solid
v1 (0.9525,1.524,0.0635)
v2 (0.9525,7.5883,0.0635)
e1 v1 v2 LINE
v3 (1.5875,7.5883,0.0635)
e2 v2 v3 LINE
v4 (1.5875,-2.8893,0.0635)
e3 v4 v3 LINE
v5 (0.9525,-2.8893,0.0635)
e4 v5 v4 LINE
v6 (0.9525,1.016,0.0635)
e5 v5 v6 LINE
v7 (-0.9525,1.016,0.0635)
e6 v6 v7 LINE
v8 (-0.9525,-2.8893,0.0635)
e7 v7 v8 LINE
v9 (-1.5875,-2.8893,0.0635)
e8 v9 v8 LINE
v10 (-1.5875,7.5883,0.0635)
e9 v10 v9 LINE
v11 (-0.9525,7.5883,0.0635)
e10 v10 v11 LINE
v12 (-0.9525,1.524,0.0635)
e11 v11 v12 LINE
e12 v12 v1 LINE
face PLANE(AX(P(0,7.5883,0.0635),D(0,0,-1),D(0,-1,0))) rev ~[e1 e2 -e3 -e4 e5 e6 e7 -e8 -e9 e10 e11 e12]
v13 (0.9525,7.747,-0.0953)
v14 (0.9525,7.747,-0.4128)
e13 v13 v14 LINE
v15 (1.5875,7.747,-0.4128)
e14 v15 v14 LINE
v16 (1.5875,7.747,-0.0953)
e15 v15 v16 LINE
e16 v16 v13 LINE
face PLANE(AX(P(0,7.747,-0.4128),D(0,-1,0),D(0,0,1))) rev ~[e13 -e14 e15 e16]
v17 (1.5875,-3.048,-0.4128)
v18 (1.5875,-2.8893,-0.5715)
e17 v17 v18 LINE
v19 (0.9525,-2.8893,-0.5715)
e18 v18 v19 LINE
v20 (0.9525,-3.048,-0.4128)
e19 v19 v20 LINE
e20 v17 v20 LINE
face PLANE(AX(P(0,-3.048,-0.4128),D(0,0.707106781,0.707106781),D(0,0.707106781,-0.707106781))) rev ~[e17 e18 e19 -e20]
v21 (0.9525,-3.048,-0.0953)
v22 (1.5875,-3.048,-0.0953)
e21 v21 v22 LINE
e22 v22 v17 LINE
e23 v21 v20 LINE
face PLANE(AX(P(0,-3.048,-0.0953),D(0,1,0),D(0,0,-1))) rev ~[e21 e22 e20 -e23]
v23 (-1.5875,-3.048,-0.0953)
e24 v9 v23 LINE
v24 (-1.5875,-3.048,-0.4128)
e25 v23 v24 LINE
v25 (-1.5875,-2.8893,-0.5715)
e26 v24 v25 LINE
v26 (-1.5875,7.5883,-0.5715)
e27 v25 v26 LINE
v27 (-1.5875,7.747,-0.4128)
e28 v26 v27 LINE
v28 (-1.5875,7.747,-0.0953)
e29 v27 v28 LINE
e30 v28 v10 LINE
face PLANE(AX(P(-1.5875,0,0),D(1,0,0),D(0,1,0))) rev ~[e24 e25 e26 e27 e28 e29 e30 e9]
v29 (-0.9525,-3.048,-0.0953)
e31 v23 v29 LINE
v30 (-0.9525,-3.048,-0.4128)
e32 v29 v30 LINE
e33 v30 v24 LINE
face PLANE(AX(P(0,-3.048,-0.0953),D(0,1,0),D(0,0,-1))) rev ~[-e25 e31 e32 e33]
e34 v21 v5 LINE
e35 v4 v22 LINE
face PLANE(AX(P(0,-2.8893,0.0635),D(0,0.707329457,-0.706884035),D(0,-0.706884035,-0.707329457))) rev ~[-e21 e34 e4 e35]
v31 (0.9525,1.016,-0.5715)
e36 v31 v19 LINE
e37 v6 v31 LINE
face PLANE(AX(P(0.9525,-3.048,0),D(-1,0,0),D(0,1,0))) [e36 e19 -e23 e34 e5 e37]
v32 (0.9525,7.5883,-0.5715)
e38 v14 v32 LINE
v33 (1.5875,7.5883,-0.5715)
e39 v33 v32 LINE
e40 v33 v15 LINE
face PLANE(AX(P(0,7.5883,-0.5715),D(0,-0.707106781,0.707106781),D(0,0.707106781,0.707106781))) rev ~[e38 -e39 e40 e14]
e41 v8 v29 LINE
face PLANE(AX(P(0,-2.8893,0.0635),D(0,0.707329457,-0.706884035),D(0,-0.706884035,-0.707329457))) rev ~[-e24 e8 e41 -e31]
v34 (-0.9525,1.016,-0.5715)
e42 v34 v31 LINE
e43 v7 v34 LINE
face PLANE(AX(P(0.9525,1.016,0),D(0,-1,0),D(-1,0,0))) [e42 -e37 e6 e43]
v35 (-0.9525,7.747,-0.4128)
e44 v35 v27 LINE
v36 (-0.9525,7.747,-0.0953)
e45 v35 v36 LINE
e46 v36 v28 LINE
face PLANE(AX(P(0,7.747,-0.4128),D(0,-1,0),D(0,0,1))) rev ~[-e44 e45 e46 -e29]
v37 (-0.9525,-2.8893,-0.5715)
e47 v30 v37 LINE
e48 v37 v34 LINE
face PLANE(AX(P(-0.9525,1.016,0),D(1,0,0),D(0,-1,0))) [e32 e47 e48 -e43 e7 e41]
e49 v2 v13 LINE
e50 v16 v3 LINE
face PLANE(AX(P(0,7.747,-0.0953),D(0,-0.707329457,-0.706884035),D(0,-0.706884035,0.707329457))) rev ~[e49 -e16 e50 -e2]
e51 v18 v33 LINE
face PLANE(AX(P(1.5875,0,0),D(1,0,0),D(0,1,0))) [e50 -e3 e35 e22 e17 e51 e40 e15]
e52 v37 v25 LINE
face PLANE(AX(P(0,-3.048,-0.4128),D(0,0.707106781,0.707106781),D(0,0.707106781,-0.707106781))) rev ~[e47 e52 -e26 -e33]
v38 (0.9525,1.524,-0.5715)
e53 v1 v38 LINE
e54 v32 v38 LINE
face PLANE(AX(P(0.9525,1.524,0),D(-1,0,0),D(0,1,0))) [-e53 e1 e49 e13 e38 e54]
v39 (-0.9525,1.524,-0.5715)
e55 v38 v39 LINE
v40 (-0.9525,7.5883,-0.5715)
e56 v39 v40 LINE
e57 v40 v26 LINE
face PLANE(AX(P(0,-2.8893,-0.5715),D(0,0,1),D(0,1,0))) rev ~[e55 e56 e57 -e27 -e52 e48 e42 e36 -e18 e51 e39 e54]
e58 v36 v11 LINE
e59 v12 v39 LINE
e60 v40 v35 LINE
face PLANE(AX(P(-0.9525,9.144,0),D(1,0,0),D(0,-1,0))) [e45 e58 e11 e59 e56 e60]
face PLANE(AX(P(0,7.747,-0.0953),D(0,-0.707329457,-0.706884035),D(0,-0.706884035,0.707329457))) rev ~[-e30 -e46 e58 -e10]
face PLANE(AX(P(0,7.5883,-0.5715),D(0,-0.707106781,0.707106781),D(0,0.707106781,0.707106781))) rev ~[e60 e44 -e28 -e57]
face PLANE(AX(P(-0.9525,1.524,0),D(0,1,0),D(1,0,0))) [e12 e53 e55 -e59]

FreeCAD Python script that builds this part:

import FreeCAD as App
import Part
import Sketcher
from FreeCAD import Vector
Q = App.Units.Quantity

doc = App.newDocument("Part")
body = doc.addObject("PartDesign::Body", "Body")

# Sketch on YZ plane
sketch1 = body.newObject("Sketcher::SketchObject", "Sketch")
sketch1.AttachmentSupport = (doc.getObject("YZ_Plane"), [""])
sketch1.MapMode = "FlatFace"
sketch1.addGeometry([
    Part.LineSegment(Vector(7.75, -0.1, 0), Vector(7.59, 0.06, 0)),  # 0
    Part.LineSegment(Vector(7.59, 0.06, 0), Vector(-2.89, 0.06, 0)),  # 1
    Part.LineSegment(Vector(-2.89, 0.06, 0), Vector(-3.05, -0.1, 0)),  # 2
    Part.LineSegment(Vector(-3.05, -0.1, 0), Vector(-3.05, -0.41, 0)),  # 3
    Part.LineSegment(Vector(-3.05, -0.41, 0), Vector(-2.89, -0.57, 0)),  # 4
    Part.LineSegment(Vector(-2.89, -0.57, 0), Vector(7.59, -0.57, 0)),  # 5
    Part.LineSegment(Vector(7.59, -0.57, 0), Vector(7.75, -0.41, 0)),  # 6
    Part.LineSegment(Vector(7.75, -0.41, 0), Vector(7.75, -0.1, 0)),  # 7
], False)
sketch1.addConstraint([
    Sketcher.Constraint("Coincident", 0, 2, 1, 1),
    Sketcher.Constraint("Coincident", 1, 2, 2, 1),
    Sketcher.Constraint("Coincident", 2, 2, 3, 1),
    Sketcher.Constraint("Coincident", 3, 2, 4, 1),
    Sketcher.Constraint("Coincident", 4, 2, 5, 1),
    Sketcher.Constraint("Coincident", 5, 2, 6, 1),
    Sketcher.Constraint("Coincident", 6, 2, 7, 1),
    Sketcher.Constraint("Coincident", 7, 2, 0, 1),
    Sketcher.Constraint("Horizontal", 1),
    Sketcher.Constraint("Vertical", 3),
    Sketcher.Constraint("Horizontal", 5),
    Sketcher.Constraint("Vertical", 7),
    Sketcher.Constraint("Perpendicular", 2, 4),
    Sketcher.Constraint("Perpendicular", 4, 6),
    Sketcher.Constraint("Horizontal", 3, 2, 6, 2),
    Sketcher.Constraint("Horizontal", 2, 2, 7, 2),
    Sketcher.Constraint("Vertical", 1, 2, 4, 2),
    Sketcher.Constraint("Vertical", 0, 2, 5, 2),
    Sketcher.Constraint("Equal", 0, 2),
    Sketcher.Constraint("DistanceX", 2, 2, -1, 1, Q("0.12 in")),
    Sketcher.Constraint("DistanceX", 1, 2, 1, 1, Q("0.4125 in")),
    Sketcher.Constraint("DistanceY", 3, 2, 3, 1, Q("0.0125 in")),
    Sketcher.Constraint("DistanceX", -1, 1, 6, 2, Q("0.305 in")),
    Sketcher.Constraint("DistanceY", -1, 1, 0, 2, Q("0.0025 in")),
])
pad1 = body.newObject("PartDesign::Pad", "Pad")
pad1.Profile = sketch1
pad1.Length = Q("0.125 in")
pad1.Midplane = True

# Sketch on XY plane
sketch2 = body.newObject("Sketcher::SketchObject", "Sketch001")
sketch2.AttachmentSupport = (doc.getObject("XY_Plane"), [""])
sketch2.MapMode = "FlatFace"
sketch2.addGeometry([
    Part.LineSegment(Vector(-3.5, 1, 0), Vector(-3.5, -3.6, 0)),  # 0
    Part.LineSegment(Vector(-3.5, -3.6, 0), Vector(4.1, -3.6, 0)),  # 1
    Part.LineSegment(Vector(4.1, -3.6, 0), Vector(4.1, -3, 0)),  # 2
    Part.LineSegment(Vector(4.1, -3, 0), Vector(3.5, -3, 0)),  # 3
    Part.LineSegment(Vector(3.5, -3, 0), Vector(3.5, 1, 0)),  # 4
    Part.LineSegment(Vector(3.5, 1, 0), Vector(1.6, 1, 0)),  # 5
    Part.LineSegment(Vector(1.6, 1, 0), Vector(1.6, -3, 0)),  # 6
    Part.LineSegment(Vector(1.6, -3, 0), Vector(1, -3, 0)),  # 7
    Part.LineSegment(Vector(1, -3, 0), Vector(1, 1, 0)),  # 8
    Part.LineSegment(Vector(1, 1, 0), Vector(-1, 1, 0)),  # 9
    Part.LineSegment(Vector(-1, 1, 0), Vector(-1, -3, 0)),  # 10
    Part.LineSegment(Vector(-1, -3, 0), Vector(-1.6, -3, 0)),  # 11
    Part.LineSegment(Vector(-1.6, -3, 0), Vector(-1.6, 1, 0)),  # 12
    Part.LineSegment(Vector(-1.6, 1, 0), Vector(-3.5, 1, 0)),  # 13
], False)
sketch2.addConstraint([
    Sketcher.Constraint("Coincident", 0, 2, 1, 1),
    Sketcher.Constraint("Coincident", 1, 2, 2, 1),
    Sketcher.Constraint("Coincident", 2, 2, 3, 1),
    Sketcher.Constraint("Coincident", 3, 2, 4, 1),
    Sketcher.Constraint("Coincident", 4, 2, 5, 1),
    Sketcher.Constraint("Coincident", 5, 2, 6, 1),
    Sketcher.Constraint("Coincident", 6, 2, 7, 1),
    Sketcher.Constraint("Coincident", 7, 2, 8, 1),
    Sketcher.Constraint("Coincident", 8, 2, 9, 1),
    Sketcher.Constraint("Coincident", 9, 2, 10, 1),
    Sketcher.Constraint("Coincident", 10, 2, 11, 1),
    Sketcher.Constraint("Coincident", 11, 2, 12, 1),
    Sketcher.Constraint("Coincident", 12, 2, 13, 1),
    Sketcher.Constraint("Coincident", 13, 2, 0, 1),
    Sketcher.Constraint("Vertical", 0),
    Sketcher.Constraint("Horizontal", 1),
    Sketcher.Constraint("Vertical", 2),
    Sketcher.Constraint("Horizontal", 3),
    Sketcher.Constraint("Vertical", 4),
    Sketcher.Constraint("Horizontal", 5),
    Sketcher.Constraint("Vertical", 6),
    Sketcher.Constraint("Horizontal", 7),
    Sketcher.Constraint("Vertical", 8),
    Sketcher.Constraint("Horizontal", 9),
    Sketcher.Constraint("Vertical", 10),
    Sketcher.Constraint("Horizontal", 11),
    Sketcher.Constraint("Vertical", 12),
    Sketcher.Constraint("Horizontal", 13),
    Sketcher.Constraint("Symmetric", 7, 2, 10, 2, -2),
    Sketcher.Constraint("Symmetric", 5, 2, 12, 2, -2),
    Sketcher.Constraint("Horizontal", 3, 2, 6, 2),
    Sketcher.Constraint("Horizontal", 5, 2, 8, 2),
    Sketcher.Constraint("Equal", 3, 7),
    Sketcher.Constraint("Equal", 5, 9),
    Sketcher.Constraint("Equal", 9, 13),
    Sketcher.Constraint("DistanceX", 1, 1, 1, 2, Q("0.3 in")),
    Sketcher.Constraint("DistanceY", 0, 2, 0, 1, Q("0.18 in")),
    Sketcher.Constraint("DistanceY", 2, 1, 2, 2, Q("0.02 in")),
    Sketcher.Constraint("DistanceX", 3, 2, 3, 1, Q("0.025 in")),
    Sketcher.Constraint("DistanceY", 0, 2, -1, 1, Q("0.14 in")),
])
pocket1 = body.newObject("PartDesign::Pocket", "Pocket")
pocket1.Profile = sketch2
pocket1.Length = Q("0.24 in")
pocket1.Midplane = True

# Sketch on XY plane
sketch3 = body.newObject("Sketcher::SketchObject", "Sketch002")
sketch3.AttachmentSupport = (doc.getObject("XY_Plane"), [""])
sketch3.MapMode = "FlatFace"
sketch3.addGeometry([
    Part.LineSegment(Vector(4.1, 9.7, 0), Vector(-3.5, 9.7, 0)),  # 0
    Part.LineSegment(Vector(-3.5, 9.7, 0), Vector(-3.5, 1.5, 0)),  # 1
    Part.LineSegment(Vector(-3.5, 1.5, 0), Vector(-1.6, 1.5, 0)),  # 2
    Part.LineSegment(Vector(-1.6, 1.5, 0), Vector(-1.6, 9.1, 0)),  # 3
    Part.LineSegment(Vector(-1.6, 9.1, 0), Vector(-1, 9.1, 0)),  # 4
    Part.LineSegment(Vector(-1, 9.1, 0), Vector(-1, 1.5, 0)),  # 5
    Part.LineSegment(Vector(-1, 1.5, 0), Vector(1, 1.5, 0)),  # 6
    Part.LineSegment(Vector(1, 1.5, 0), Vector(1, 9.1, 0)),  # 7
    Part.LineSegment(Vector(1, 9.1, 0), Vector(1.6, 9.1, 0)),  # 8
    Part.LineSegment(Vector(1.6, 9.1, 0), Vector(1.6, 1.5, 0)),  # 9
    Part.LineSegment(Vector(1.6, 1.5, 0), Vector(3.5, 1.5, 0)),  # 10
    Part.LineSegment(Vector(3.5, 1.5, 0), Vector(3.5, 9.1, 0)),  # 11
    Part.LineSegment(Vector(3.5, 9.1, 0), Vector(4.1, 9.1, 0)),  # 12
    Part.LineSegment(Vector(4.1, 9.1, 0), Vector(4.1, 9.7, 0)),  # 13
], False)
sketch3.addConstraint([
    Sketcher.Constraint("Coincident", 0, 2, 1, 1),
    Sketcher.Constraint("Coincident", 1, 2, 2, 1),
    Sketcher.Constraint("Coincident", 2, 2, 3, 1),
    Sketcher.Constraint("Coincident", 3, 2, 4, 1),
    Sketcher.Constraint("Coincident", 4, 2, 5, 1),
    Sketcher.Constraint("Coincident", 5, 2, 6, 1),
    Sketcher.Constraint("Coincident", 6, 2, 7, 1),
    Sketcher.Constraint("Coincident", 7, 2, 8, 1),
    Sketcher.Constraint("Coincident", 8, 2, 9, 1),
    Sketcher.Constraint("Coincident", 9, 2, 10, 1),
    Sketcher.Constraint("Coincident", 10, 2, 11, 1),
    Sketcher.Constraint("Coincident", 11, 2, 12, 1),
    Sketcher.Constraint("Coincident", 12, 2, 13, 1),
    Sketcher.Constraint("Coincident", 13, 2, 0, 1),
    Sketcher.Constraint("Horizontal", 0),
    Sketcher.Constraint("Vertical", 1),
    Sketcher.Constraint("Horizontal", 2),
    Sketcher.Constraint("Vertical", 3),
    Sketcher.Constraint("Horizontal", 4),
    Sketcher.Constraint("Vertical", 5),
    Sketcher.Constraint("Horizontal", 6),
    Sketcher.Constraint("Vertical", 7),
    Sketcher.Constraint("Horizontal", 8),
    Sketcher.Constraint("Vertical", 9),
    Sketcher.Constraint("Horizontal", 10),
    Sketcher.Constraint("Vertical", 11),
    Sketcher.Constraint("Horizontal", 12),
    Sketcher.Constraint("Vertical", 13),
    Sketcher.Constraint("Symmetric", 4, 2, 7, 2, -2),
    Sketcher.Constraint("Symmetric", 2, 2, 9, 2, -2),
    Sketcher.Constraint("Horizontal", 2, 2, 5, 2),
    Sketcher.Constraint("Horizontal", 8, 2, 11, 2),
    Sketcher.Constraint("Equal", 2, 6),
    Sketcher.Constraint("Equal", 6, 10),
    Sketcher.Constraint("Equal", 8, 12),
    Sketcher.Constraint("Equal", 0, 3),
    Sketcher.Constraint("DistanceX", 0, 2, 0, 1, Q("0.3 in")),
    Sketcher.Constraint("DistanceY", 1, 2, 1, 1, Q("0.32 in")),
    Sketcher.Constraint("DistanceX", 2, 1, 2, 2, Q("0.075 in")),
    Sketcher.Constraint("DistanceY", -1, 1, 0, 2, Q("0.38 in")),
])
pocket2 = body.newObject("PartDesign::Pocket", "Pocket001")
pocket2.Profile = sketch3
pocket2.Length = Q("0.24 in")
pocket2.Midplane = True

doc.recompute()
